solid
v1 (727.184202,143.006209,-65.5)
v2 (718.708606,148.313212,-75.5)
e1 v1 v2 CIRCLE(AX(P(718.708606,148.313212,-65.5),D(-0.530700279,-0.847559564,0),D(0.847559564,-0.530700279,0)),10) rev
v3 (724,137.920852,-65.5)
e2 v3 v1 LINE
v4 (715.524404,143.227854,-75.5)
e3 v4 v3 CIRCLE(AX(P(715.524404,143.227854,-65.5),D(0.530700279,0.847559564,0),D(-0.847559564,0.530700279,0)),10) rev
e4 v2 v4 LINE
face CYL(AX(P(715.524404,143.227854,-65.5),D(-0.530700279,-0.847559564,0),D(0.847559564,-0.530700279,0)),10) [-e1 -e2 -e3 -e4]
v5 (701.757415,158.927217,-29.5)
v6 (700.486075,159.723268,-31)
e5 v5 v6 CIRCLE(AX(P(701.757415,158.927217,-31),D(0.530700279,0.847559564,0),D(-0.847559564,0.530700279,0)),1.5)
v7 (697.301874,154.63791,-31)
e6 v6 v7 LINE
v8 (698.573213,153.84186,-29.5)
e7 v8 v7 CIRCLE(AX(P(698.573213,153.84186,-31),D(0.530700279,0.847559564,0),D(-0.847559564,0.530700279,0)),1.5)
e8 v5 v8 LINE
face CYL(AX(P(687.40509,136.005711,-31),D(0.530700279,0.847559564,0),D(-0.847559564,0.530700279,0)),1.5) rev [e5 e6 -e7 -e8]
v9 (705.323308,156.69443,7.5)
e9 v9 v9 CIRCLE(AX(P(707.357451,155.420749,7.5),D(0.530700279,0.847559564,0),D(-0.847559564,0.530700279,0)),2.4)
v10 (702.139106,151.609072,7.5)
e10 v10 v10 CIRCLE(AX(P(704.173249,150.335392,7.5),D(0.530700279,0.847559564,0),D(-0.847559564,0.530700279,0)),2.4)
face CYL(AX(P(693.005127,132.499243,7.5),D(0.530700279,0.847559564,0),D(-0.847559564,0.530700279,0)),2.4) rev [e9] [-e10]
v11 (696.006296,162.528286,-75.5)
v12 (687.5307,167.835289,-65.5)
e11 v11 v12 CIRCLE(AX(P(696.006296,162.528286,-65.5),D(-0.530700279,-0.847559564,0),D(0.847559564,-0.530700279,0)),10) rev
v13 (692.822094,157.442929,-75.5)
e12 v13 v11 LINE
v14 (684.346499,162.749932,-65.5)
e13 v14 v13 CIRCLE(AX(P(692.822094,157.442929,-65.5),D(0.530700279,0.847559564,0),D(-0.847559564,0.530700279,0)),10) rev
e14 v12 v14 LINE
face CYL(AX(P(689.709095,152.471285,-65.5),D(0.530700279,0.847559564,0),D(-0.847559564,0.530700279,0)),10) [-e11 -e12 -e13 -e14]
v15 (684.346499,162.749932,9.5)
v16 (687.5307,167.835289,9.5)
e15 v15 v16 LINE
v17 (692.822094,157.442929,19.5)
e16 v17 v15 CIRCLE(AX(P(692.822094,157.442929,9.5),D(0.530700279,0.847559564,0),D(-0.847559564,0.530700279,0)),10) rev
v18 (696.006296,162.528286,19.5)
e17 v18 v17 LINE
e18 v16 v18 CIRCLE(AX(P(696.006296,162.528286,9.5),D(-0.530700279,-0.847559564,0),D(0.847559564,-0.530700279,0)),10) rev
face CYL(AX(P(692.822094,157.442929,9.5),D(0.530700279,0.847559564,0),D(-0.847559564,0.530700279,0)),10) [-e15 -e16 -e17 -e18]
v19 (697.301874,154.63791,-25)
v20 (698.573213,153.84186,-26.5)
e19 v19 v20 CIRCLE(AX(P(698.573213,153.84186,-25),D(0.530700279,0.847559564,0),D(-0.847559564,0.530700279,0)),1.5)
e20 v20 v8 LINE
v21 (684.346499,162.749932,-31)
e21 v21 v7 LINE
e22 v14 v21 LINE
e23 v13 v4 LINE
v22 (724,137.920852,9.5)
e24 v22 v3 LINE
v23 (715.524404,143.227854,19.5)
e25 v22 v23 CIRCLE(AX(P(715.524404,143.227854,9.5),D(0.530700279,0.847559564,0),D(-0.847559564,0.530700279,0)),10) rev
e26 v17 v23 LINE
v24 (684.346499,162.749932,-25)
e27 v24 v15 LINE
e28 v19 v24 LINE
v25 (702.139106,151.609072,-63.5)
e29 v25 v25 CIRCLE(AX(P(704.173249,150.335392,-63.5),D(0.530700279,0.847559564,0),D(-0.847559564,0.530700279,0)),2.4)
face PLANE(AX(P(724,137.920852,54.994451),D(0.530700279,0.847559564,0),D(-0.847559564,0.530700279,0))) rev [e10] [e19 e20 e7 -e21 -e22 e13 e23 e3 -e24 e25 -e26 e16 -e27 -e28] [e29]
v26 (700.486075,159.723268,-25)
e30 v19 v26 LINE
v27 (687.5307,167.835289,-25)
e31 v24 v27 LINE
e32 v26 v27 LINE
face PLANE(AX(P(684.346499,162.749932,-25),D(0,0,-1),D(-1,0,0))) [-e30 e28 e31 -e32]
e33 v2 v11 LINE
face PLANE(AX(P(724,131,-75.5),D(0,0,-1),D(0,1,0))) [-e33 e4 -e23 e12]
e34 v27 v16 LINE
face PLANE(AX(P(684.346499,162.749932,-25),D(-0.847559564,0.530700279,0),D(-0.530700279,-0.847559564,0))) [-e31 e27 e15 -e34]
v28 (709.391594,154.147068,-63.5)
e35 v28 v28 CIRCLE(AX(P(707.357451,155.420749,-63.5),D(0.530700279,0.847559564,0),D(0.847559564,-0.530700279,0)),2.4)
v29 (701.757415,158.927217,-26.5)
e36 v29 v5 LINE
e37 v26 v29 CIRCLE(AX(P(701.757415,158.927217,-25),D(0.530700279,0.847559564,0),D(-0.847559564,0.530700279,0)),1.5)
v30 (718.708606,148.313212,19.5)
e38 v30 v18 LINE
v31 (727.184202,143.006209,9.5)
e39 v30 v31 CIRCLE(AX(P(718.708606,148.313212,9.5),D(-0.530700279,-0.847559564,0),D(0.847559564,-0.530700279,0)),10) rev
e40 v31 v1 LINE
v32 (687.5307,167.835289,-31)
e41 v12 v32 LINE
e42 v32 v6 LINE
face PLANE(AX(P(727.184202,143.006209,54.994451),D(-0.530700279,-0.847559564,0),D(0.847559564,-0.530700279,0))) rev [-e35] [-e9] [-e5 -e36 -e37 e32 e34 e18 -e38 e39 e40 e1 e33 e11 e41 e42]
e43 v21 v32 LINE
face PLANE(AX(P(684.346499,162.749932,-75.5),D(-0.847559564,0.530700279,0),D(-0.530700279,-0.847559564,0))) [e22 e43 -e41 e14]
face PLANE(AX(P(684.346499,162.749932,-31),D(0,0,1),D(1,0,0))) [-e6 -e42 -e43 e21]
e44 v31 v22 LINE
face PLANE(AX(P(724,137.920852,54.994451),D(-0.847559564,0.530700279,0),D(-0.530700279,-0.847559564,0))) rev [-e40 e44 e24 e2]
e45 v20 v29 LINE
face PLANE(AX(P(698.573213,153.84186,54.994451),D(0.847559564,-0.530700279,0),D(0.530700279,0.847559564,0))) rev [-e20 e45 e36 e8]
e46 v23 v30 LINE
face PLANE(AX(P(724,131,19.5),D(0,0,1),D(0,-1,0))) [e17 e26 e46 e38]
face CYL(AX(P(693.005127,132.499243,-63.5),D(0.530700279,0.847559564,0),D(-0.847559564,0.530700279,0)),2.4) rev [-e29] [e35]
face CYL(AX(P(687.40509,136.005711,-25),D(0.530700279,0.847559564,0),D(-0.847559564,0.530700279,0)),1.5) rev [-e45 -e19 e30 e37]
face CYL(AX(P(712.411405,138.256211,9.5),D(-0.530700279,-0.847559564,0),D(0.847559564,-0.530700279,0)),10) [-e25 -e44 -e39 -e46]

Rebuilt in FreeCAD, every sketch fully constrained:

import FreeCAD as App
import Part
import Sketcher

V = App.Vector
Q = App.Units.Quantity


def edges_at(feature, points):
    """Names of the edges that pass closest to the given points."""
    edges = feature.Shape.Edges
    near = lambda p: min(range(len(edges)), key=lambda i: edges[i].distToShape(Part.Vertex(*p))[0])
    return sorted({f"Edge{near(p) + 1}" for p in points})

doc = App.newDocument("Part")
body = doc.addObject("PartDesign::Body", "Body")

# Sketch on XY plane
sketch1 = body.newObject("Sketcher::SketchObject", "Sketch")
sketch1.AttachmentSupport = (doc.getObject("XY_Plane"), [""])
sketch1.MapMode = "FlatFace"
sketch1.AttachmentOffset = App.Placement(V(0, 0, -25), App.Rotation())
sketch1.addGeometry([
    Part.LineSegment(V(698.573213, 153.84186, 0), V(724, 137.920852, 0)),
    Part.LineSegment(V(724, 137.920852, 0), V(727.184202, 143.006209, 0)),
    Part.LineSegment(V(727.184202, 143.006209, 0), V(701.757415, 158.927217, 0)),
    Part.LineSegment(V(701.757415, 158.927217, 0), V(698.573213, 153.84186, 0)),
], False)
sketch1.addConstraint([
    Sketcher.Constraint("Coincident", 0, 2, 1, 1),
    Sketcher.Constraint("Coincident", 1, 2, 2, 1),
    Sketcher.Constraint("Coincident", 2, 2, 3, 1),
    Sketcher.Constraint("Coincident", 3, 2, 0, 1),
    Sketcher.Constraint("Perpendicular", 0, 1),
    Sketcher.Constraint("Perpendicular", 1, 2),
    Sketcher.Constraint("Perpendicular", 2, 3),
    Sketcher.Constraint("Distance", 0, Q("30 mm")),
    Sketcher.Constraint("Distance", 1, Q("6 mm")),
    Sketcher.Constraint("DistanceX", -1, 1, 0, 2, Q("724 mm")),
    Sketcher.Constraint("DistanceX", -1, 1, 1, 2, Q("727.184202 mm")),
    Sketcher.Constraint("DistanceY", -1, 1, 0, 2, Q("137.920852 mm")),
])
pad1 = body.newObject("PartDesign::Pad", "Pad")
pad1.Profile = sketch1
pad1.Type = "TwoLengths"
pad1.Length = 44.5
pad1.Length2 = 50.5

# Sketch on an angled plane
sketch2 = body.newObject("Sketcher::SketchObject", "Sketch001")
sketch2.Placement = App.Placement(V(269.130391, 429.817066, 0), App.Rotation(V(0.847559564, -0.530700279, 0), V(0, 0, -1.000000001), V(0.530700279, 0.847559564, 0), "ZXY"))
sketch2.addGeometry([
    Part.LineSegment(V(493.652986, 75.5, 0), V(493.652986, 31, 0)),  # 0
    Part.LineSegment(V(493.652986, 31, 0), V(510.43849, 31, 0)),  # 1
    Part.LineSegment(V(510.43849, 31, 0), V(510.43849, 75.5, 0)),  # 2
    Part.LineSegment(V(510.43849, 75.5, 0), V(493.652986, 75.5, 0)),  # 3
    Part.LineSegment(V(493.652986, 25, 0), V(493.652986, -19.5, 0)),  # 4
    Part.LineSegment(V(493.652986, -19.5, 0), V(510.43849, -19.5, 0)),  # 5
    Part.LineSegment(V(510.43849, -19.5, 0), V(510.43849, 25, 0)),  # 6
    Part.LineSegment(V(510.43849, 25, 0), V(493.652986, 25, 0)),  # 7
], False)
sketch2.addConstraint([
    Sketcher.Constraint("Coincident", 0, 2, 1, 1),
    Sketcher.Constraint("Coincident", 1, 2, 2, 1),
    Sketcher.Constraint("Coincident", 2, 2, 3, 1),
    Sketcher.Constraint("Coincident", 3, 2, 0, 1),
    Sketcher.Constraint("Coincident", 4, 2, 5, 1),
    Sketcher.Constraint("Coincident", 5, 2, 6, 1),
    Sketcher.Constraint("Coincident", 6, 2, 7, 1),
    Sketcher.Constraint("Coincident", 7, 2, 4, 1),
    Sketcher.Constraint("Vertical", 0),
    Sketcher.Constraint("Horizontal", 1),
    Sketcher.Constraint("Vertical", 2),
    Sketcher.Constraint("Horizontal", 3),
    Sketcher.Constraint("Vertical", 4),
    Sketcher.Constraint("Horizontal", 5),
    Sketcher.Constraint("Vertical", 6),
    Sketcher.Constraint("Horizontal", 7),
    Sketcher.Constraint("Vertical", 3, 2, 4, 2),
    Sketcher.Constraint("Vertical", 2, 2, 5, 2),
    Sketcher.Constraint("Equal", 2, 4),
    Sketcher.Constraint("DistanceY", 0, 2, 0, 1, Q("44.5 mm")),
    Sketcher.Constraint("DistanceY", -1, 1, 0, 2, Q("31 mm")),
    Sketcher.Constraint("DistanceY", -1, 1, 6, 2, Q("25 mm")),
    Sketcher.Constraint("DistanceX", 1, 1, 1, 2, Q("16.785504 mm")),
    Sketcher.Constraint("DistanceX", -1, 1, 1, 2, Q("510.43849 mm")),
])
pad2 = body.newObject("PartDesign::Pad", "Pad001")
pad2.Profile = sketch2
pad2.Length = 6
pad2.Reversed = True
doc.recompute()

fillet = body.newObject("PartDesign::Fillet", "Fillet")
fillet.Base = (pad2, edges_at(pad2, [
    (725.592, 140.464, -75.5),
    (725.592, 140.464, 19.5),
    (685.939, 165.293, -75.5),
    (685.939, 165.293, 19.5),
]))
fillet.Radius = 10

# Sketch on an angled plane
sketch3 = body.newObject("Sketcher::SketchObject", "Sketch002")
sketch3.Placement = App.Placement(V(269.130391, 429.817066, 0), App.Rotation(V(0.847559564, -0.530700279, 0), V(0, 0, -1.000000001), V(0.530700279, 0.847559564, 0), "ZXY"))
sketch3.addGeometry([
    Part.Circle(V(510.43849, 25, 0), V(0, 0, 1), 1.5),
    Part.Circle(V(510.43849, 31, 0), V(0, 0, 1), 1.5),
    Part.Circle(V(517.045738, -7.5, 0), V(0, 0, 1), 2.4),
    Part.Circle(V(517.045738, 63.5, 0), V(0, 0, 1), 2.4),
], False)
sketch3.addConstraint([
    Sketcher.Constraint("Equal", 0, 1),
    Sketcher.Constraint("Equal", 2, 3),
    Sketcher.Constraint("Vertical", 0, 3, 1, 3),
    Sketcher.Constraint("Vertical", 2, 3, 3, 3),
    Sketcher.Constraint("Diameter", 0, Q("3 mm")),
    Sketcher.Constraint("Diameter", 2, Q("4.8 mm")),
    Sketcher.Constraint("DistanceY", -1, 1, 0, 3, Q("25 mm")),
    Sketcher.Constraint("DistanceY", -1, 1, 1, 3, Q("31 mm")),
    Sketcher.Constraint("DistanceY", 2, 3, 3, 3, Q("71 mm")),
    Sketcher.Constraint("DistanceY", 2, 3, -1, 1, Q("7.5 mm")),
    Sketcher.Constraint("DistanceX", -1, 1, 0, 3, Q("510.43849 mm")),
    Sketcher.Constraint("DistanceX", -1, 1, 2, 3, Q("517.045738 mm")),
])
pocket1 = body.newObject("PartDesign::Pocket", "Pocket")
pocket1.Profile = sketch3
pocket1.Type = "ThroughAll"

doc.recompute()
